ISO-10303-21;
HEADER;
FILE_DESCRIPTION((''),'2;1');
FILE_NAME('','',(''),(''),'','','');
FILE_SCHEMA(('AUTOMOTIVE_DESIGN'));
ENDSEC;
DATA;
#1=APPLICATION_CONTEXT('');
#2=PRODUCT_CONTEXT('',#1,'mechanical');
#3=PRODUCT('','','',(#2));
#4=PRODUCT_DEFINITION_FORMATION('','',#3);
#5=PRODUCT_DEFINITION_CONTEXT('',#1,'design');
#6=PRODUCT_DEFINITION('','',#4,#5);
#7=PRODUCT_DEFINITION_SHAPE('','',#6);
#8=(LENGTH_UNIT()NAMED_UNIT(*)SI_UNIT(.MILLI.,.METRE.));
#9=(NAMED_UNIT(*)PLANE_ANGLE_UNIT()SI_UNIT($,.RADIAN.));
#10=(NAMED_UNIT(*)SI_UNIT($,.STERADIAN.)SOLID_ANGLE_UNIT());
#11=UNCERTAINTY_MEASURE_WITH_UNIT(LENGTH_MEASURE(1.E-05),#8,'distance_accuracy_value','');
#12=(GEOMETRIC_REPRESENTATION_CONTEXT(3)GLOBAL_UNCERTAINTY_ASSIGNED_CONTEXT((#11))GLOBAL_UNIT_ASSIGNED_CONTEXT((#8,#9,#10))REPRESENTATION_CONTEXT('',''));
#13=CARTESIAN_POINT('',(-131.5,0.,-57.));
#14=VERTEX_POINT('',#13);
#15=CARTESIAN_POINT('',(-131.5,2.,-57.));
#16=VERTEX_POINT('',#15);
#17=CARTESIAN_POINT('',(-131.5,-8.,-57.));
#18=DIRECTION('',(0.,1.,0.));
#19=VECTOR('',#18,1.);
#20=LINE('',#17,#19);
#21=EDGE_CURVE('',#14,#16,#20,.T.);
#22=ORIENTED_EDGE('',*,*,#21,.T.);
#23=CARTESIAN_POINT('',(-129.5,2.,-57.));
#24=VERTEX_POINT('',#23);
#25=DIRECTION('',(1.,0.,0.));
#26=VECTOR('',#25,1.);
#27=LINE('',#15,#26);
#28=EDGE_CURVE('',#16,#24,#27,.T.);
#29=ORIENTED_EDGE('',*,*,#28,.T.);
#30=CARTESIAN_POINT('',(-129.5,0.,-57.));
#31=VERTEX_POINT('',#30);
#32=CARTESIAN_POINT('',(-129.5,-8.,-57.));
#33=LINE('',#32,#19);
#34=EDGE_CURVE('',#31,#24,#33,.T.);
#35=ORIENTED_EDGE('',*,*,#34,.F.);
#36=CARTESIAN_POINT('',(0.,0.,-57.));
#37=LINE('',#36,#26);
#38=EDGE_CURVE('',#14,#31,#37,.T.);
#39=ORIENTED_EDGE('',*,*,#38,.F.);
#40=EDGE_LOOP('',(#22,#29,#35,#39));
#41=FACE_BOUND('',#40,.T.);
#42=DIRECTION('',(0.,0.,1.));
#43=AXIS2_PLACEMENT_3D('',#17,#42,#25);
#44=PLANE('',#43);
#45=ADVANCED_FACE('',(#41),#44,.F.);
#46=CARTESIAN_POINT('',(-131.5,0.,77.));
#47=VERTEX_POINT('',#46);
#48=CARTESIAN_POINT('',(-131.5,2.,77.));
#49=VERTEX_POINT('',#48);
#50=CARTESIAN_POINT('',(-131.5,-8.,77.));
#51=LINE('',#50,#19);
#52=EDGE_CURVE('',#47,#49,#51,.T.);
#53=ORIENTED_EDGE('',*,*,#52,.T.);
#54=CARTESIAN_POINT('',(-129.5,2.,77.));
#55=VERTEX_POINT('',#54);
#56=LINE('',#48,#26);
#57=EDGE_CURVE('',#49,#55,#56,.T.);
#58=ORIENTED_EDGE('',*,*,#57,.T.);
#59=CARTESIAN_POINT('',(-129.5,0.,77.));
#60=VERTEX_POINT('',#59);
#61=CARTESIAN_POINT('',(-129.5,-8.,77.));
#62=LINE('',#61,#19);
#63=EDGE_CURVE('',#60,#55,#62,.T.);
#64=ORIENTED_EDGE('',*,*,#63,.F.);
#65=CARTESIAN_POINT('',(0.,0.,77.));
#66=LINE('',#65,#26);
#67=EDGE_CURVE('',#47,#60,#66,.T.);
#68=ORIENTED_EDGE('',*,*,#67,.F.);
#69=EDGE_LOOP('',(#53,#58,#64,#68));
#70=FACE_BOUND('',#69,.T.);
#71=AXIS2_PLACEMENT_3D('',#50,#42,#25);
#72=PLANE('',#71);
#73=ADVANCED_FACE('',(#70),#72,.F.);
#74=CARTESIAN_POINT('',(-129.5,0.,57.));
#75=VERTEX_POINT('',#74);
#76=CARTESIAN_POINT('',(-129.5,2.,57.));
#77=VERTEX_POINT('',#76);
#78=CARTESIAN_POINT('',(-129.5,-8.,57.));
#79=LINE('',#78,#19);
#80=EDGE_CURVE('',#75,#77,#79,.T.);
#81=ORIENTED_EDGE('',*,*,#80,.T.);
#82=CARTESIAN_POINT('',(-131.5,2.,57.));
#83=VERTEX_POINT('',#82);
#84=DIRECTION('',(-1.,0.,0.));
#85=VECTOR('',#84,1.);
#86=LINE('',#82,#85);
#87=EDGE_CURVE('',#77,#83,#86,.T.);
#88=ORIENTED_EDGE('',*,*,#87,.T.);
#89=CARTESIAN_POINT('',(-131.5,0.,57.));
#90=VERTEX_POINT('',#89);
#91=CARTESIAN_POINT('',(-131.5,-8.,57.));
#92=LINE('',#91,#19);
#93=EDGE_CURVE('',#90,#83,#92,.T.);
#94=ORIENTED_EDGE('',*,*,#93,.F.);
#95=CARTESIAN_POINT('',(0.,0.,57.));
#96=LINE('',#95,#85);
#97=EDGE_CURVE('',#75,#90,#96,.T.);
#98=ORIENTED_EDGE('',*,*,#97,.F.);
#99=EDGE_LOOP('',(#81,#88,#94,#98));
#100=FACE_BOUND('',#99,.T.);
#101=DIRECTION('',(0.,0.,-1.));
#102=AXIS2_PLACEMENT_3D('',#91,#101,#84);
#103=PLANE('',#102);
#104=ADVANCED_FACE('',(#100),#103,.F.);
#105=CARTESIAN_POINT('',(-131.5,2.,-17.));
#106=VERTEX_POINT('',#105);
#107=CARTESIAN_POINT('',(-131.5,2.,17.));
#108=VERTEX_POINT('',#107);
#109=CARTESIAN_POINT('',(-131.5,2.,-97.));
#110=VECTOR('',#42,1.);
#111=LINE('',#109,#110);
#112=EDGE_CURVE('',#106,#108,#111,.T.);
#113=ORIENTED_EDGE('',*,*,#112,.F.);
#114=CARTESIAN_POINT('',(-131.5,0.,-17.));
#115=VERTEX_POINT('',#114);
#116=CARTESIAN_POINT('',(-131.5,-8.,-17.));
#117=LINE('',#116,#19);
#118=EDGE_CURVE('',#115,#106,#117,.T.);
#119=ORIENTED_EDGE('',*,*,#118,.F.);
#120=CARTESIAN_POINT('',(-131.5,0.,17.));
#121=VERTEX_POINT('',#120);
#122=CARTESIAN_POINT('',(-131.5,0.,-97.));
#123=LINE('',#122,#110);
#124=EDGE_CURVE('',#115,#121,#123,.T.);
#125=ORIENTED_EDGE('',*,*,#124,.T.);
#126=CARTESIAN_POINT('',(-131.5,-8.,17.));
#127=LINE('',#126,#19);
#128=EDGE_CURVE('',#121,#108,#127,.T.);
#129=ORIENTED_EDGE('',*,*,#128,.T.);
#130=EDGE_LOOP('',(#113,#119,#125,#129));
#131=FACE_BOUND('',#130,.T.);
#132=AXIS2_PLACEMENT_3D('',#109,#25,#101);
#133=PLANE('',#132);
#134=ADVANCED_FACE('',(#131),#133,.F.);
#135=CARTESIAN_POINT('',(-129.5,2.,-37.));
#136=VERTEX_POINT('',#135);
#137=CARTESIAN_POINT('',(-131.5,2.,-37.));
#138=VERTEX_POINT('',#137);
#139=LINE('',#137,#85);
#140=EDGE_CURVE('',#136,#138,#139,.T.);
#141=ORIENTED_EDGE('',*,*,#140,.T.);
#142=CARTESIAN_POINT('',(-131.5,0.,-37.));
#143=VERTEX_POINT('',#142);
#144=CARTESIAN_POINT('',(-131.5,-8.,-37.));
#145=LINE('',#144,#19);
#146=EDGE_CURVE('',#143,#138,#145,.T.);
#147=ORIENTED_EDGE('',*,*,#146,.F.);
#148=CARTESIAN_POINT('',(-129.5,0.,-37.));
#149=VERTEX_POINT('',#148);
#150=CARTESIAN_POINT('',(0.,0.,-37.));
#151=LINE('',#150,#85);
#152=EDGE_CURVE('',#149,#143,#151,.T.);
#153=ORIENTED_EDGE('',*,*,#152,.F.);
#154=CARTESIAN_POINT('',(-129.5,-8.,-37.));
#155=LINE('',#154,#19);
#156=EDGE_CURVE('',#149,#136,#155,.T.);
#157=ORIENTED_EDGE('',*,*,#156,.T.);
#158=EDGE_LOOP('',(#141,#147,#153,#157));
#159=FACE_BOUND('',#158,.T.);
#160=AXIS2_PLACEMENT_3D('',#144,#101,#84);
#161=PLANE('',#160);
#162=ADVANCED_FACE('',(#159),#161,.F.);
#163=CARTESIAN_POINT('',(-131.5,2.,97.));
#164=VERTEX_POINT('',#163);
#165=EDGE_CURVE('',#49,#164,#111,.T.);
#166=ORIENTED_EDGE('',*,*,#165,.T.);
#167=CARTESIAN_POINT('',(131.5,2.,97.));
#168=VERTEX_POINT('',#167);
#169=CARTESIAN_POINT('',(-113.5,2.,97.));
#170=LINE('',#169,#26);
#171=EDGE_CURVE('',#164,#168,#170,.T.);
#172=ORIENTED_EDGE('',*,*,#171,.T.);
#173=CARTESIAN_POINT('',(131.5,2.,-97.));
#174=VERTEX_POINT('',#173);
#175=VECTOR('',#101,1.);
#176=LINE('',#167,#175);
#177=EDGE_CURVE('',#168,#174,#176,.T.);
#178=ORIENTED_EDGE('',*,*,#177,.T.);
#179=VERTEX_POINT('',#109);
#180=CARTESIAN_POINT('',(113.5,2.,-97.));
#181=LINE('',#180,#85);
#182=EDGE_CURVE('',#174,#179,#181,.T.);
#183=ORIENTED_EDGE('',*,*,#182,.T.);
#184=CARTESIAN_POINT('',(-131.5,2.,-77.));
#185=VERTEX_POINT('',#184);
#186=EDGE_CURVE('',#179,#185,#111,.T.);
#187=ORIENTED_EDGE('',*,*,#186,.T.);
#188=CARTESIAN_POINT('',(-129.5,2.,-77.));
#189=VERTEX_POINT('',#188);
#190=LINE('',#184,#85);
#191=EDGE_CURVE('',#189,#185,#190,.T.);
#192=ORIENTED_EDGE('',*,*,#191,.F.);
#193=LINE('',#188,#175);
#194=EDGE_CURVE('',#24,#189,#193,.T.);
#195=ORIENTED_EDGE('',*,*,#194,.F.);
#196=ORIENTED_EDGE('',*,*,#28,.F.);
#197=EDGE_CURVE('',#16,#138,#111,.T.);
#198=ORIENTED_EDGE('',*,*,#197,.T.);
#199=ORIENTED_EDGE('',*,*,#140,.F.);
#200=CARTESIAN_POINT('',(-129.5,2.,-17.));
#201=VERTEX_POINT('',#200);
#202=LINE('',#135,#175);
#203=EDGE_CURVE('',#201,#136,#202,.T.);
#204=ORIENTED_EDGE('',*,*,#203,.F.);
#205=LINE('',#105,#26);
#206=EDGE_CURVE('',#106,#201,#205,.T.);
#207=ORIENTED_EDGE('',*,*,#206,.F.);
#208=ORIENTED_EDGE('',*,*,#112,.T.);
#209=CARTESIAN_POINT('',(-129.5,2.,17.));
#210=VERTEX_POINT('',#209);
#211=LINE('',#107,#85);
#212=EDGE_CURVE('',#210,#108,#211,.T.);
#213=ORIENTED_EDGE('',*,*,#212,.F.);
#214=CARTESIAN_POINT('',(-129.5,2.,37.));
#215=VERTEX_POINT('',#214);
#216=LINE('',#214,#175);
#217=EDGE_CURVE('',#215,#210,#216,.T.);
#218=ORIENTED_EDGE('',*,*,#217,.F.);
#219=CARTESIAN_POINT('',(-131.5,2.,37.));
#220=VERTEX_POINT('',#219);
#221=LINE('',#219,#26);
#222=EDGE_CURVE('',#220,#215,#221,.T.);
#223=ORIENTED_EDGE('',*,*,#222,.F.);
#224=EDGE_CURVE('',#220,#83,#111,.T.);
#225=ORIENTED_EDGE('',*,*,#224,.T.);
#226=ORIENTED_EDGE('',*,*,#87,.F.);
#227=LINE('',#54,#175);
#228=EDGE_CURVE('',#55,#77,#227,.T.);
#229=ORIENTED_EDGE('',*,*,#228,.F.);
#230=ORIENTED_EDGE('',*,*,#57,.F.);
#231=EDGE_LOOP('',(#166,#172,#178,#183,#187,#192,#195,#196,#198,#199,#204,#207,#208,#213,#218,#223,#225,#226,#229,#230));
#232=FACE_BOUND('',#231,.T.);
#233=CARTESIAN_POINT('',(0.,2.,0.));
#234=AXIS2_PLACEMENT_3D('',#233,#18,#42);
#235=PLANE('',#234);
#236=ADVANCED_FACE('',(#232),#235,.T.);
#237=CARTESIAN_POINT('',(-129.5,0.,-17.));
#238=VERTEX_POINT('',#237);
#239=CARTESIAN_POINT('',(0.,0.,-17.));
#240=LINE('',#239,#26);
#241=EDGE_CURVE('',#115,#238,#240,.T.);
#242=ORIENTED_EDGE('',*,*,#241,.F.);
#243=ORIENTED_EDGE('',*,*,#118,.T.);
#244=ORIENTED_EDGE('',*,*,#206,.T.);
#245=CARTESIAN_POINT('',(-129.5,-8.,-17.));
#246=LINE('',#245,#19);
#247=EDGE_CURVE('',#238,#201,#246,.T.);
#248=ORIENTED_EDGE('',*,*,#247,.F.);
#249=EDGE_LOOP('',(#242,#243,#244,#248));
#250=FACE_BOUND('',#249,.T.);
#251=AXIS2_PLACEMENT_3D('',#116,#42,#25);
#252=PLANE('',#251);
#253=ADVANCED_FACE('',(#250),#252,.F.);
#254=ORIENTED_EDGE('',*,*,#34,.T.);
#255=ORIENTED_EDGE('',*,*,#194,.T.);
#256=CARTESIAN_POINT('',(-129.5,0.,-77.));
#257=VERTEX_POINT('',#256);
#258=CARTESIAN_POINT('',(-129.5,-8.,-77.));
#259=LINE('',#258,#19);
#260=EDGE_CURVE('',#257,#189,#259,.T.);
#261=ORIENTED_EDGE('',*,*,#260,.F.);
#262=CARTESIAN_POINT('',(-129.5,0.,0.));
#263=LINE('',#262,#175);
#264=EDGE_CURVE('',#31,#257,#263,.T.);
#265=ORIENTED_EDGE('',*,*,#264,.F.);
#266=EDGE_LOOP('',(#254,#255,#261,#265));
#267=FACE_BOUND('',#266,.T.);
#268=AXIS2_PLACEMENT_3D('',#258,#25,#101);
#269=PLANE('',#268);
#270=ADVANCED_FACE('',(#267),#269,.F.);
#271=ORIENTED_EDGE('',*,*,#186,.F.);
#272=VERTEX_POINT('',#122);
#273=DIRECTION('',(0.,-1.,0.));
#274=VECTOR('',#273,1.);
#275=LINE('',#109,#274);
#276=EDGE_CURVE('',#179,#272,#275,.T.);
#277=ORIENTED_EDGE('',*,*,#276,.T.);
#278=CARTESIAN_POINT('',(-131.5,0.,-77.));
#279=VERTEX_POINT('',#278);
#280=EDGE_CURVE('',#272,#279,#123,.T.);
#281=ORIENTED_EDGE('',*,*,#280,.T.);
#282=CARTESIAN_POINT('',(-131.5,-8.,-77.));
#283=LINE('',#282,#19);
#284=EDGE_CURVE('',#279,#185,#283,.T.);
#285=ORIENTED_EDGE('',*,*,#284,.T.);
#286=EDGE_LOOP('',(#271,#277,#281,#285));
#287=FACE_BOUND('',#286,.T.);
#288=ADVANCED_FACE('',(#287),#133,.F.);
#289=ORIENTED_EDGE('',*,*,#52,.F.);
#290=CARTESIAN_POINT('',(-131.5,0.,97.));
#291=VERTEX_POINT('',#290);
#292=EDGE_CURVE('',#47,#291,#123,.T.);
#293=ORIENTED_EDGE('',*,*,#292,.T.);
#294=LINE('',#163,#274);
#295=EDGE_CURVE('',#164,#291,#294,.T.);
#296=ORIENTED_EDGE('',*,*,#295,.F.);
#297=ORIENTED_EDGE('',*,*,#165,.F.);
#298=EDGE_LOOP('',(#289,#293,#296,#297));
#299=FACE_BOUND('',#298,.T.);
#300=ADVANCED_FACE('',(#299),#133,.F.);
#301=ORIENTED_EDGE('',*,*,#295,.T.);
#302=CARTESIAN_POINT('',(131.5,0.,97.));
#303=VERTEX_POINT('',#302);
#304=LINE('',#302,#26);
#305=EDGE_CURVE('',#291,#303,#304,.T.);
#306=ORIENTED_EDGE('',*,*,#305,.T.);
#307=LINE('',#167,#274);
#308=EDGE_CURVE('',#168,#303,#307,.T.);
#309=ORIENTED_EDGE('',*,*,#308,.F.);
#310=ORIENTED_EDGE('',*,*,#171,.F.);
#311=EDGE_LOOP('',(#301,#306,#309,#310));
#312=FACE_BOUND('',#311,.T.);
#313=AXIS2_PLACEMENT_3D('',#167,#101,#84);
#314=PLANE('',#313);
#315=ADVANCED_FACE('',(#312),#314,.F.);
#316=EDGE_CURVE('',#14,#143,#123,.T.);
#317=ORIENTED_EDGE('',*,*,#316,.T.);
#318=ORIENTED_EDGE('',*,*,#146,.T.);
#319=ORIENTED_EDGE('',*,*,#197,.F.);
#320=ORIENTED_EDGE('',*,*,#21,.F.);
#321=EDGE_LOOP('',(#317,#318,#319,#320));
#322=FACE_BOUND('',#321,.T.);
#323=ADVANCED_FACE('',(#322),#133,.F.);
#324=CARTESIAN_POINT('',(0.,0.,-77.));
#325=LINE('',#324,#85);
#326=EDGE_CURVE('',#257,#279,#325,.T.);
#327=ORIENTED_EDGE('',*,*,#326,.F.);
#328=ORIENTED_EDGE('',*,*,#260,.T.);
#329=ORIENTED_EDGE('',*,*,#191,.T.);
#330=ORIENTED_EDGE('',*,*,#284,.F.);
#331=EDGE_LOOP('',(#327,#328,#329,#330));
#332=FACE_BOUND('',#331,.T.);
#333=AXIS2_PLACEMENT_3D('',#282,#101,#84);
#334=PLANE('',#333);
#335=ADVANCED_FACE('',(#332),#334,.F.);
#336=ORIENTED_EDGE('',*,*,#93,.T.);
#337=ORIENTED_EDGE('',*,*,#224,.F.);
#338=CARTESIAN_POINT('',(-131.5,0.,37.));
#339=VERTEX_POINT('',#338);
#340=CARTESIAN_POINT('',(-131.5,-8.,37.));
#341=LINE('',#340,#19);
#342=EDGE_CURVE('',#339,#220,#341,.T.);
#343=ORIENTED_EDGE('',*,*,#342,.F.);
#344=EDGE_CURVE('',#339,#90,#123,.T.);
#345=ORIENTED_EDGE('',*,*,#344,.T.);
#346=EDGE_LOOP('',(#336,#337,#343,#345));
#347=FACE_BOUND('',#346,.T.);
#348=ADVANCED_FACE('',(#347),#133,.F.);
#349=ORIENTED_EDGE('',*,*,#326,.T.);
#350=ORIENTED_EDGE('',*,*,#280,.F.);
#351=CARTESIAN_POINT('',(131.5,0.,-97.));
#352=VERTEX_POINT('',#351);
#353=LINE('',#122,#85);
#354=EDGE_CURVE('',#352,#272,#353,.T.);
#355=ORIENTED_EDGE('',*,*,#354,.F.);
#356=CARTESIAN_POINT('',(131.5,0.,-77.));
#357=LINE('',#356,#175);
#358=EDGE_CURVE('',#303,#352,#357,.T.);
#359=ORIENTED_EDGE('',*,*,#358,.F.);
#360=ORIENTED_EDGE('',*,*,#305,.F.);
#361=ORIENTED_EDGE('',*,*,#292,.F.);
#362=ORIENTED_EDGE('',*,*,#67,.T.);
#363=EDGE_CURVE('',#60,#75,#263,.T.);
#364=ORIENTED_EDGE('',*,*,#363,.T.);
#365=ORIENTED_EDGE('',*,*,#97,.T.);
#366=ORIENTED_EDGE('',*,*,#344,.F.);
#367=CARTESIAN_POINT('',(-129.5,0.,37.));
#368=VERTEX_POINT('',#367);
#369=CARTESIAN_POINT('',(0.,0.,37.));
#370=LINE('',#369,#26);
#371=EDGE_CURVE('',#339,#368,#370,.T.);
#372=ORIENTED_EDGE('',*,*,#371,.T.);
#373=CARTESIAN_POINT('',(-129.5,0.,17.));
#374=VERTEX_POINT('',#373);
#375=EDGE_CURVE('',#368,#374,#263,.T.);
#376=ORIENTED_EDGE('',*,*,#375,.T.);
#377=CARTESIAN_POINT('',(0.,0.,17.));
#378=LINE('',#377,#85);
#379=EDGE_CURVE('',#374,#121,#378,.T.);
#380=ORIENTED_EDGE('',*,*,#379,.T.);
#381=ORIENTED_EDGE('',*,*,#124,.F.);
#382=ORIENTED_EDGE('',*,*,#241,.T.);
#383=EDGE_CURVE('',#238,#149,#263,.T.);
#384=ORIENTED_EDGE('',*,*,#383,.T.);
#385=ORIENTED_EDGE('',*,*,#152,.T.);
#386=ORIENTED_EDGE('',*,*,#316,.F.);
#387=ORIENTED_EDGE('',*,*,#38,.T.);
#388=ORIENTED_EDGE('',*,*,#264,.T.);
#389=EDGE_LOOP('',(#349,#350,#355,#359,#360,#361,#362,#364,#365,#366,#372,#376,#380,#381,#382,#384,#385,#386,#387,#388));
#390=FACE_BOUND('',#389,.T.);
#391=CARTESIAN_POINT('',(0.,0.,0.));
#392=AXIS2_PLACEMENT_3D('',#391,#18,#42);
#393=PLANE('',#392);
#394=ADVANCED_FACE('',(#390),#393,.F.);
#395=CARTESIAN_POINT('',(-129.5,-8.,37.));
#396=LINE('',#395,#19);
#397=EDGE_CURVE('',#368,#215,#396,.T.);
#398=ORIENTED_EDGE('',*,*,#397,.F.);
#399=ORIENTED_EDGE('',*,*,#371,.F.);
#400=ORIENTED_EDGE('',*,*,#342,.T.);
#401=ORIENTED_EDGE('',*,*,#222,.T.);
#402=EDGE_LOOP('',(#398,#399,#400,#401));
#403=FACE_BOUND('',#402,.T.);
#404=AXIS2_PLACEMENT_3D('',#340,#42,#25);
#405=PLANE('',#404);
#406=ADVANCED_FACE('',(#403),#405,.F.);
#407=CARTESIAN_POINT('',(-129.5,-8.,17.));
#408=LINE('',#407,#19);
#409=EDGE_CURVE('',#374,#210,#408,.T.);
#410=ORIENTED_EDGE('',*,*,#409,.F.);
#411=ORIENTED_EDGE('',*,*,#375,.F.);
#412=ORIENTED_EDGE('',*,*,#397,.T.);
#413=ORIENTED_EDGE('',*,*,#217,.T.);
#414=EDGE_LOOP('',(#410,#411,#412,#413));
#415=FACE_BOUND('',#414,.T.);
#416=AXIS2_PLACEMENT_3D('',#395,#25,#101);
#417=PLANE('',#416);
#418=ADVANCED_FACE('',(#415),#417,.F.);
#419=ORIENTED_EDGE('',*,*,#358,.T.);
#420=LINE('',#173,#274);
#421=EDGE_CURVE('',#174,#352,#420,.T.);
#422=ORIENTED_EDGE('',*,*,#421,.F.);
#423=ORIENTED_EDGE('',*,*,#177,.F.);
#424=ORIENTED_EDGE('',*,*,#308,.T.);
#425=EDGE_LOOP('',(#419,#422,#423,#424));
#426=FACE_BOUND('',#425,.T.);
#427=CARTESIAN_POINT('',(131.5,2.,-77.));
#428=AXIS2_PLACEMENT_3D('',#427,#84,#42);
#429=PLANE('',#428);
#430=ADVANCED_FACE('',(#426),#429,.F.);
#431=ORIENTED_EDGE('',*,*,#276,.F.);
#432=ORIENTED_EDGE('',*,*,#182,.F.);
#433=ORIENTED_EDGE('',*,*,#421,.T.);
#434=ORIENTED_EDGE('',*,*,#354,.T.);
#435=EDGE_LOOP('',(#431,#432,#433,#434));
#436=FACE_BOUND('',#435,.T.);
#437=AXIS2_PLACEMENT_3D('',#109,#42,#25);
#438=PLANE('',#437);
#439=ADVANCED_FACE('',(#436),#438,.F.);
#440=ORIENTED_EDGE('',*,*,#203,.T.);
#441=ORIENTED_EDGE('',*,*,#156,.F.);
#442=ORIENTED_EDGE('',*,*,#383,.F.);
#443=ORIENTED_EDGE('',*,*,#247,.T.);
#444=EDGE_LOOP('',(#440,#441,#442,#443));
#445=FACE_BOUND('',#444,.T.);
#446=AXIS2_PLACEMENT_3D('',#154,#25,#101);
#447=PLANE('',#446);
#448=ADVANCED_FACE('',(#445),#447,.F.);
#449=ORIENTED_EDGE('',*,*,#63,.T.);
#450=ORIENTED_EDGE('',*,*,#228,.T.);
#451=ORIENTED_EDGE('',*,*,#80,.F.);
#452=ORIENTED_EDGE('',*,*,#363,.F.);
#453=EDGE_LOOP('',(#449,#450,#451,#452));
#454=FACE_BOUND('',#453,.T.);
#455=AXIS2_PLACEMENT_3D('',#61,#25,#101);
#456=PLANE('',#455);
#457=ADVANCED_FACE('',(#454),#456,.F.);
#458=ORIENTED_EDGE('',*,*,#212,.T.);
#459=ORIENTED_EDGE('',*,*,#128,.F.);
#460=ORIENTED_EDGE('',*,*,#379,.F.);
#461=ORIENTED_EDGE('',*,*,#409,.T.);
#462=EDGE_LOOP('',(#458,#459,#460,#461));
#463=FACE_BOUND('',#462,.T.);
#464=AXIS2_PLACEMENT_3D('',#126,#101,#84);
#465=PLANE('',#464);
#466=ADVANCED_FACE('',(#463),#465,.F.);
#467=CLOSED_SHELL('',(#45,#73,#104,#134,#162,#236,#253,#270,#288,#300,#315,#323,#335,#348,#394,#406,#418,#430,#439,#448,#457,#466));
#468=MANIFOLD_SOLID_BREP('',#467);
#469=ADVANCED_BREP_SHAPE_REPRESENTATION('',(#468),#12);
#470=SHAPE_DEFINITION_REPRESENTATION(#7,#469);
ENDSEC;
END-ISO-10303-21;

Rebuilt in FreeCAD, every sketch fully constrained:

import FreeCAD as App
import Part
import Sketcher
from FreeCAD import Vector


def add_polygon(sketch, points):
    """Adds a closed chain of lines whose ends are joined by coincident constraints."""
    first, n = sketch.GeometryCount, len(points)
    for a, b in zip(points, points[1:] + points[:1]):
        sketch.addGeometry(Part.LineSegment(App.Vector(*a, 0), App.Vector(*b, 0)), False)
    for i in range(n):
        sketch.addConstraint(Sketcher.Constraint("Coincident", first + i, 2, first + (i + 1) % n, 1))

doc = App.newDocument("Part")
body = doc.addObject("PartDesign::Body", "Body")

sketch1 = body.newObject("Sketcher::SketchObject", "Sketch")
sketch1.AttachmentSupport = (doc.getObject("XZ_Plane"), [""])
sketch1.MapMode = "FlatFace"
add_polygon(sketch1, [(132, 97), (132, -97), (-132, -97), (-132, 97)])
sketch1.addConstraint(Sketcher.Constraint("Vertical", 0))
sketch1.addConstraint(Sketcher.Constraint("Horizontal", 1))
sketch1.addConstraint(Sketcher.Constraint("Vertical", 2))
sketch1.addConstraint(Sketcher.Constraint("Horizontal", 3))
sketch1.addConstraint(Sketcher.Constraint("Symmetric", 0, 2, 2, 2, -1, 1))
sketch1.addConstraint(Sketcher.Constraint("DistanceX", 1, 2, 1, 1, 263.0))
sketch1.addConstraint(Sketcher.Constraint("DistanceY", 0, 2, 0, 1, 194.0))
pad1 = body.newObject("PartDesign::Pad", "Pad")
pad1.Profile = sketch1
pad1.Length = 2
pad1.Reversed = True

sketch2 = body.newObject("Sketcher::SketchObject", "Sketch001")
sketch2.AttachmentSupport = (doc.getObject("XZ_Plane"), [""])
sketch2.MapMode = "FlatFace"
sketch2.AttachmentOffset = App.Placement(Vector(0, 0, -2), App.Rotation())
add_polygon(sketch2, [(-131.5, -77), (-131.5, -57), (-129.5, -57), (-129.5, -77)])
add_polygon(sketch2, [(-131.5, -37), (-131.5, -17), (-129.5, -17), (-129.5, -37)])
add_polygon(sketch2, [(-131.5, 17), (-131.5, 37), (-129.5, 37), (-129.5, 17)])
add_polygon(sketch2, [(-131.5, 57), (-131.5, 77), (-129.5, 77), (-129.5, 57)])
sketch2.addConstraint(Sketcher.Constraint("Vertical", 0))
sketch2.addConstraint(Sketcher.Constraint("Horizontal", 1))
sketch2.addConstraint(Sketcher.Constraint("Vertical", 2))
sketch2.addConstraint(Sketcher.Constraint("Horizontal", 3))
sketch2.addConstraint(Sketcher.Constraint("Vertical", 4))
sketch2.addConstraint(Sketcher.Constraint("Horizontal", 5))
sketch2.addConstraint(Sketcher.Constraint("Vertical", 6))
sketch2.addConstraint(Sketcher.Constraint("Horizontal", 7))
sketch2.addConstraint(Sketcher.Constraint("Vertical", 8))
sketch2.addConstraint(Sketcher.Constraint("Horizontal", 9))
sketch2.addConstraint(Sketcher.Constraint("Vertical", 10))
sketch2.addConstraint(Sketcher.Constraint("Horizontal", 11))
sketch2.addConstraint(Sketcher.Constraint("Vertical", 12))
sketch2.addConstraint(Sketcher.Constraint("Horizontal", 13))
sketch2.addConstraint(Sketcher.Constraint("Vertical", 14))
sketch2.addConstraint(Sketcher.Constraint("Horizontal", 15))
sketch2.addConstraint(Sketcher.Constraint("Symmetric", 7, 2, 8, 2, -1))
sketch2.addConstraint(Sketcher.Constraint("Symmetric", 5, 2, 10, 2, -1))
sketch2.addConstraint(Sketcher.Constraint("Symmetric", 3, 2, 12, 2, -1))
sketch2.addConstraint(Sketcher.Constraint("Symmetric", 1, 2, 14, 2, -1))
sketch2.addConstraint(Sketcher.Constraint("Vertical", 3, 2, 4, 2))
sketch2.addConstraint(Sketcher.Constraint("Vertical", 2, 2, 5, 2))
sketch2.addConstraint(Sketcher.Constraint("Equal", 2, 4))
sketch2.addConstraint(Sketcher.Constraint("DistanceX", 1, 1, 1, 2, 2.0))
sketch2.addConstraint(Sketcher.Constraint("DistanceY", 0, 1, 0, 2, 20.0))
sketch2.addConstraint(Sketcher.Constraint("DistanceY", 0, 2, -1, 1, 57.0))
sketch2.addConstraint(Sketcher.Constraint("DistanceY", 4, 2, -1, 1, 17.0))
sketch2.addConstraint(Sketcher.Constraint("DistanceX", 0, 2, -1, 1, 131.5))
pocket1 = body.newObject("PartDesign::Pocket", "Pocket")
pocket1.Profile = sketch2
pocket1.Length = 10
pocket1.Reversed = True

doc.recompute()
